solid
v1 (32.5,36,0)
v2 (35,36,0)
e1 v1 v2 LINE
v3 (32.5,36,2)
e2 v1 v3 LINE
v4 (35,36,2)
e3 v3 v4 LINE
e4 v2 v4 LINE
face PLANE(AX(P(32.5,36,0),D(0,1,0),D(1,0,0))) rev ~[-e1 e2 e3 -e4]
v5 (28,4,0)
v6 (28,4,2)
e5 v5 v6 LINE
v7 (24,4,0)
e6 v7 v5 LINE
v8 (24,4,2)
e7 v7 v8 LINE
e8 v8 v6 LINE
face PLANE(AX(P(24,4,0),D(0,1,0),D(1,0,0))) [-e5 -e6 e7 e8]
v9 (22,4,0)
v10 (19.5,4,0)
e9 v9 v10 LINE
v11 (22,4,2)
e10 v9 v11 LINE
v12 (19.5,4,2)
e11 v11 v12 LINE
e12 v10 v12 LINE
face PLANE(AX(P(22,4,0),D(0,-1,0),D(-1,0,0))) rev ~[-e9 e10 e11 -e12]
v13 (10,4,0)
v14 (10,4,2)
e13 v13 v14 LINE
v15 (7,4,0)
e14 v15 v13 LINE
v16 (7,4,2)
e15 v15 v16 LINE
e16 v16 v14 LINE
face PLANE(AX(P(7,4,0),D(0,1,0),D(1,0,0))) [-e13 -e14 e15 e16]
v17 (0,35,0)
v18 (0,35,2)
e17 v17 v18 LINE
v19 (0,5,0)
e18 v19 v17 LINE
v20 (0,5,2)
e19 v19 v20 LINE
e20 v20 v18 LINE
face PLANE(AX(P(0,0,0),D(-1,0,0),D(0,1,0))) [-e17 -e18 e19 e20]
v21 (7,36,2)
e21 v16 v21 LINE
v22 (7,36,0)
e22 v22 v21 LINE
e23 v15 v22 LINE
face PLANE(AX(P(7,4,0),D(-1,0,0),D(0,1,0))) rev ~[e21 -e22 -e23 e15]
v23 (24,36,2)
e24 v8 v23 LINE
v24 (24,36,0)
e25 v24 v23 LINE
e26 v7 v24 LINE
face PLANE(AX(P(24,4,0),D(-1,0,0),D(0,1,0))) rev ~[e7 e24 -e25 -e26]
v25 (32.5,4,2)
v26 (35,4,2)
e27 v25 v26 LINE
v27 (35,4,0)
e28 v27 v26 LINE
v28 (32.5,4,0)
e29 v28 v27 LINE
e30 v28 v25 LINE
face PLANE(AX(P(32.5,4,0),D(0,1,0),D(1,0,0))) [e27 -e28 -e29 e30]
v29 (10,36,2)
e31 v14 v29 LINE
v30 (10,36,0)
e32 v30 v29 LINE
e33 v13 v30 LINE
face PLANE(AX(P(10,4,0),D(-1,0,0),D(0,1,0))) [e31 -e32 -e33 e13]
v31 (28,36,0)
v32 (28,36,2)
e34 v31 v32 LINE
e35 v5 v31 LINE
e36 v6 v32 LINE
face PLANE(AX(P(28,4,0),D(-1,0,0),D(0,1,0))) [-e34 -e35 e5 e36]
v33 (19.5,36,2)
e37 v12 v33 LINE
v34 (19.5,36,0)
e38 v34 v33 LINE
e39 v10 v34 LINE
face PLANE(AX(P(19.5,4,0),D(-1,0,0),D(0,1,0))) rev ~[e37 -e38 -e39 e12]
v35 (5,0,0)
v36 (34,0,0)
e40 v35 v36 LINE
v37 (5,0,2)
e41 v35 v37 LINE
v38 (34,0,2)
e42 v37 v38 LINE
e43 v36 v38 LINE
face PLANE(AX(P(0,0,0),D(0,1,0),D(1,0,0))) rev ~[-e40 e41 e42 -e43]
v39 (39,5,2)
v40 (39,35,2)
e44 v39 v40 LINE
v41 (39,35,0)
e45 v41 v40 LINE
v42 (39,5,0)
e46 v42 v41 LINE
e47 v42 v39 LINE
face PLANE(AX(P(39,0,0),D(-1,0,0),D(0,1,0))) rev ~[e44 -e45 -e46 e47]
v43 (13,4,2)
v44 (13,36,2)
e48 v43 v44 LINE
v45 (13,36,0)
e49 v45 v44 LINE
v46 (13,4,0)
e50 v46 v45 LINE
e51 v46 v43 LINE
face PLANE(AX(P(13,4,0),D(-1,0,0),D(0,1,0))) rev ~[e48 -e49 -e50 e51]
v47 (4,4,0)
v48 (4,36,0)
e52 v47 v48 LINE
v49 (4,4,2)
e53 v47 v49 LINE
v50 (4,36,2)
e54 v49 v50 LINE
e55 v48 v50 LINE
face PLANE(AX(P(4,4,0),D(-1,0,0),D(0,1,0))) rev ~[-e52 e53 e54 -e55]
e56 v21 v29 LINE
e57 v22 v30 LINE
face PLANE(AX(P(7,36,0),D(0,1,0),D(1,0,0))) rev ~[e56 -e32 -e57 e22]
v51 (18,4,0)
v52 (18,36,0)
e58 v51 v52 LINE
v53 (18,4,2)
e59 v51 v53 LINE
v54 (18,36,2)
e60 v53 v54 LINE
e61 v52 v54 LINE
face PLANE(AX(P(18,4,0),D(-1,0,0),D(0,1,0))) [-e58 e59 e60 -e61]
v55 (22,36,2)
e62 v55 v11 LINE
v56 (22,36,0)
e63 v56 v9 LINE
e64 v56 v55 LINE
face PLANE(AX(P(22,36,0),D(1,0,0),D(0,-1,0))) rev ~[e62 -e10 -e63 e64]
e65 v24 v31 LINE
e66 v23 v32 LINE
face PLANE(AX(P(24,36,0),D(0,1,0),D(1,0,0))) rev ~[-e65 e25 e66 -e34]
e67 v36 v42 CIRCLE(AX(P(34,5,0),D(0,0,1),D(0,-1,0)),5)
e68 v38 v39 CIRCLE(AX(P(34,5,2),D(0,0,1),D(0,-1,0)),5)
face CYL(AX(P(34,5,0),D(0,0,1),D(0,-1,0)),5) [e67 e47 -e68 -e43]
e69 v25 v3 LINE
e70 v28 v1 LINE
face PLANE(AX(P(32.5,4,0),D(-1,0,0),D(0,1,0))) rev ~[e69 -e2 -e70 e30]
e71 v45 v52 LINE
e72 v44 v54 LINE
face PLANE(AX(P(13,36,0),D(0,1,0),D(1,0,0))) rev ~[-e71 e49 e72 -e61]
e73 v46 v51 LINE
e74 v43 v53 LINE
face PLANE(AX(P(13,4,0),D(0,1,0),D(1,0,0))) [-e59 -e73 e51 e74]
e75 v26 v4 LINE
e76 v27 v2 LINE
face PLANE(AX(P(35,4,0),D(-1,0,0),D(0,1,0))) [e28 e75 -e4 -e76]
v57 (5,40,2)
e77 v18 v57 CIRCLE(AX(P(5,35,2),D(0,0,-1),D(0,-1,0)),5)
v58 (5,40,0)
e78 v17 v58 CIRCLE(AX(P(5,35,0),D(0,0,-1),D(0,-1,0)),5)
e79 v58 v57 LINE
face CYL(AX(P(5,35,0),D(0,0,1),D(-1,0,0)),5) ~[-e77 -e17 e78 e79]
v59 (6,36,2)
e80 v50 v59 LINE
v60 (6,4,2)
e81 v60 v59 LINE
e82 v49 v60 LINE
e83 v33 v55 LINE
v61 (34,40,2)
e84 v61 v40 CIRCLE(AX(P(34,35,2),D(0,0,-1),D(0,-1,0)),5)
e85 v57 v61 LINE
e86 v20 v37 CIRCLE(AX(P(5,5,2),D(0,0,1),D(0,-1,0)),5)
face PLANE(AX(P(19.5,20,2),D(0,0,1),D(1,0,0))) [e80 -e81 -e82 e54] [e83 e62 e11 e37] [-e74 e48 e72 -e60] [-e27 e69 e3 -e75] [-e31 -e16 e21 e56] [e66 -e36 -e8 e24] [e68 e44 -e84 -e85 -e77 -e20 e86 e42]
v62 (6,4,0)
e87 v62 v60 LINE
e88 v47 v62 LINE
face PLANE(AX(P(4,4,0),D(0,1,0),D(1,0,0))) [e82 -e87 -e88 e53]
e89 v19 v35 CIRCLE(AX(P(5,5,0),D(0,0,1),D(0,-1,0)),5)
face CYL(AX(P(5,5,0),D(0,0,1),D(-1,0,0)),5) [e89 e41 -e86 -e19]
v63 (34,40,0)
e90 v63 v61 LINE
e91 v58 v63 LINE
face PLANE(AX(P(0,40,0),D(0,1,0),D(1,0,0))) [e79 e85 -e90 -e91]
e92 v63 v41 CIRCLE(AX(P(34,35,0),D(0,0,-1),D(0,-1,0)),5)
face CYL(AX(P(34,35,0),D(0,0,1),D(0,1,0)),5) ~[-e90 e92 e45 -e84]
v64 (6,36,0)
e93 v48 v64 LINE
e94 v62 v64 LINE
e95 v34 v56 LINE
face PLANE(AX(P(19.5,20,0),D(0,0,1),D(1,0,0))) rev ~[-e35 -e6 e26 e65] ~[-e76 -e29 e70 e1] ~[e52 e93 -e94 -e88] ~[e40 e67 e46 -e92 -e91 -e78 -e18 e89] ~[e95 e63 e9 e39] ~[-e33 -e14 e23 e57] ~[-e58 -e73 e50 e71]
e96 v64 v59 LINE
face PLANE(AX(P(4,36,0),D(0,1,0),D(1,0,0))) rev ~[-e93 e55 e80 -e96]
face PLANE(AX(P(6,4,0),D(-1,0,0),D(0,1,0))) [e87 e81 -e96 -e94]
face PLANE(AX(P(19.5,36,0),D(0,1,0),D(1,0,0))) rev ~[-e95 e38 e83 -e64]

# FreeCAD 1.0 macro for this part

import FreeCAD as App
import Part
import Sketcher
from FreeCAD import Vector


def edges_at(feature, points):
    """Names of the edges that pass closest to the given points."""
    edges = feature.Shape.Edges
    near = lambda p: min(range(len(edges)), key=lambda i: edges[i].distToShape(Part.Vertex(*p))[0])
    return sorted({f"Edge{near(p) + 1}" for p in points})

doc = App.newDocument("Part")
body = doc.addObject("PartDesign::Body", "Body")

# Sketch on XY plane
sketch1 = body.newObject("Sketcher::SketchObject", "Sketch")
sketch1.AttachmentSupport = (doc.getObject("XY_Plane"), [""])
sketch1.MapMode = "FlatFace"
sketch1.addGeometry([
    Part.LineSegment(Vector(0, 40, 0), Vector(0, 0, 0)),  # 0
    Part.LineSegment(Vector(0, 0, 0), Vector(39, 0, 0)),  # 1
    Part.LineSegment(Vector(39, 0, 0), Vector(39, 40, 0)),  # 2
    Part.LineSegment(Vector(39, 40, 0), Vector(0, 40, 0)),  # 3
    Part.LineSegment(Vector(6, 4, 0), Vector(4, 4, 0)),  # 4
    Part.LineSegment(Vector(4, 4, 0), Vector(4, 36, 0)),  # 5
    Part.LineSegment(Vector(4, 36, 0), Vector(6, 36, 0)),  # 6
    Part.LineSegment(Vector(6, 36, 0), Vector(6, 4, 0)),  # 7
    Part.LineSegment(Vector(10, 4, 0), Vector(7, 4, 0)),  # 8
    Part.LineSegment(Vector(7, 4, 0), Vector(7, 36, 0)),  # 9
    Part.LineSegment(Vector(7, 36, 0), Vector(10, 36, 0)),  # 10
    Part.LineSegment(Vector(10, 36, 0), Vector(10, 4, 0)),  # 11
    Part.LineSegment(Vector(18, 4, 0), Vector(13, 4, 0)),  # 12
    Part.LineSegment(Vector(13, 4, 0), Vector(13, 36, 0)),  # 13
    Part.LineSegment(Vector(13, 36, 0), Vector(18, 36, 0)),  # 14
    Part.LineSegment(Vector(18, 36, 0), Vector(18, 4, 0)),  # 15
    Part.LineSegment(Vector(22, 36, 0), Vector(22, 4, 0)),  # 16
    Part.LineSegment(Vector(22, 4, 0), Vector(19.5, 4, 0)),  # 17
    Part.LineSegment(Vector(19.5, 4, 0), Vector(19.5, 36, 0)),  # 18
    Part.LineSegment(Vector(19.5, 36, 0), Vector(22, 36, 0)),  # 19
    Part.LineSegment(Vector(28, 4, 0), Vector(24, 4, 0)),  # 20
    Part.LineSegment(Vector(24, 4, 0), Vector(24, 36, 0)),  # 21
    Part.LineSegment(Vector(24, 36, 0), Vector(28, 36, 0)),  # 22
    Part.LineSegment(Vector(28, 36, 0), Vector(28, 4, 0)),  # 23
    Part.LineSegment(Vector(35, 4, 0), Vector(32.5, 4, 0)),  # 24
    Part.LineSegment(Vector(32.5, 4, 0), Vector(32.5, 36, 0)),  # 25
    Part.LineSegment(Vector(32.5, 36, 0), Vector(35, 36, 0)),  # 26
    Part.LineSegment(Vector(35, 36, 0), Vector(35, 4, 0)),  # 27
], False)
sketch1.addConstraint([
    Sketcher.Constraint("Coincident", 0, 2, 1, 1),
    Sketcher.Constraint("Coincident", 1, 2, 2, 1),
    Sketcher.Constraint("Coincident", 2, 2, 3, 1),
    Sketcher.Constraint("Coincident", 3, 2, 0, 1),
    Sketcher.Constraint("Coincident", 4, 2, 5, 1),
    Sketcher.Constraint("Coincident", 5, 2, 6, 1),
    Sketcher.Constraint("Coincident", 6, 2, 7, 1),
    Sketcher.Constraint("Coincident", 7, 2, 4, 1),
    Sketcher.Constraint("Coincident", 8, 2, 9, 1),
    Sketcher.Constraint("Coincident", 9, 2, 10, 1),
    Sketcher.Constraint("Coincident", 10, 2, 11, 1),
    Sketcher.Constraint("Coincident", 11, 2, 8, 1),
    Sketcher.Constraint("Coincident", 12, 2, 13, 1),
    Sketcher.Constraint("Coincident", 13, 2, 14, 1),
    Sketcher.Constraint("Coincident", 14, 2, 15, 1),
    Sketcher.Constraint("Coincident", 15, 2, 12, 1),
    Sketcher.Constraint("Coincident", 16, 2, 17, 1),
    Sketcher.Constraint("Coincident", 17, 2, 18, 1),
    Sketcher.Constraint("Coincident", 18, 2, 19, 1),
    Sketcher.Constraint("Coincident", 19, 2, 16, 1),
    Sketcher.Constraint("Coincident", 20, 2, 21, 1),
    Sketcher.Constraint("Coincident", 21, 2, 22, 1),
    Sketcher.Constraint("Coincident", 22, 2, 23, 1),
    Sketcher.Constraint("Coincident", 23, 2, 20, 1),
    Sketcher.Constraint("Coincident", 24, 2, 25, 1),
    Sketcher.Constraint("Coincident", 25, 2, 26, 1),
    Sketcher.Constraint("Coincident", 26, 2, 27, 1),
    Sketcher.Constraint("Coincident", 27, 2, 24, 1),
    Sketcher.Constraint("Vertical", 0),
    Sketcher.Constraint("Horizontal", 1),
    Sketcher.Constraint("Vertical", 2),
    Sketcher.Constraint("Horizontal", 3),
    Sketcher.Constraint("Horizontal", 4),
    Sketcher.Constraint("Vertical", 5),
    Sketcher.Constraint("Horizontal", 6),
    Sketcher.Constraint("Vertical", 7),
    Sketcher.Constraint("Horizontal", 8),
    Sketcher.Constraint("Vertical", 9),
    Sketcher.Constraint("Horizontal", 10),
    Sketcher.Constraint("Vertical", 11),
    Sketcher.Constraint("Horizontal", 12),
    Sketcher.Constraint("Vertical", 13),
    Sketcher.Constraint("Horizontal", 14),
    Sketcher.Constraint("Vertical", 15),
    Sketcher.Constraint("Vertical", 16),
    Sketcher.Constraint("Horizontal", 17),
    Sketcher.Constraint("Vertical", 18),
    Sketcher.Constraint("Horizontal", 19),
    Sketcher.Constraint("Horizontal", 20),
    Sketcher.Constraint("Vertical", 21),
    Sketcher.Constraint("Horizontal", 22),
    Sketcher.Constraint("Vertical", 23),
    Sketcher.Constraint("Horizontal", 24),
    Sketcher.Constraint("Vertical", 25),
    Sketcher.Constraint("Horizontal", 26),
    Sketcher.Constraint("Vertical", 27),
    Sketcher.Constraint("Coincident", 0, 2, -1, 1),
    Sketcher.Constraint("Horizontal", 7, 2, 8, 2),
    Sketcher.Constraint("Horizontal", 6, 2, 9, 2),
    Sketcher.Constraint("Horizontal", 11, 2, 12, 2),
    Sketcher.Constraint("Horizontal", 10, 2, 13, 2),
    Sketcher.Constraint("Horizontal", 15, 2, 16, 2),
    Sketcher.Constraint("Horizontal", 14, 2, 18, 2),
    Sketcher.Constraint("Horizontal", 17, 2, 20, 2),
    Sketcher.Constraint("Horizontal", 19, 2, 21, 2),
    Sketcher.Constraint("Horizontal", 23, 2, 24, 2),
    Sketcher.Constraint("Horizontal", 22, 2, 25, 2),
    Sketcher.Constraint("Equal", 19, 24),
    Sketcher.Constraint("DistanceX", 1, 1, 1, 2, 39.0),
    Sketcher.Constraint("DistanceX", 4, 2, 4, 1, 2.0),
    Sketcher.Constraint("DistanceX", 8, 2, 8, 1, 3.0),
    Sketcher.Constraint("DistanceX", 12, 2, 12, 1, 5.0),
    Sketcher.Constraint("DistanceX", 20, 2, 20, 1, 4.0),
    Sketcher.Constraint("DistanceY", 0, 2, 0, 1, 40.0),
    Sketcher.Constraint("DistanceY", 5, 1, 5, 2, 32.0),
    Sketcher.Constraint("DistanceX", 17, 2, 17, 1, 2.5),
    Sketcher.Constraint("DistanceX", -1, 1, 4, 2, 4.0),
    Sketcher.Constraint("DistanceY", -1, 1, 4, 2, 4.0),
    Sketcher.Constraint("DistanceX", -1, 1, 8, 2, 7.0),
    Sketcher.Constraint("DistanceX", -1, 1, 12, 2, 13.0),
    Sketcher.Constraint("DistanceX", -1, 1, 16, 2, 22.0),
    Sketcher.Constraint("DistanceX", -1, 1, 20, 2, 24.0),
    Sketcher.Constraint("DistanceX", -1, 1, 26, 2, 35.0),
])
pad1 = body.newObject("PartDesign::Pad", "Pad")
pad1.Profile = sketch1
pad1.Length = 2
doc.recompute()

fillet = body.newObject("PartDesign::Fillet", "Fillet")
fillet.Base = (pad1, edges_at(pad1, [
    (39, 40, 1),
    (39, 0, 1),
    (0, 0, 1),
    (0, 40, 1),
]))
fillet.Radius = 5

doc.recompute()
